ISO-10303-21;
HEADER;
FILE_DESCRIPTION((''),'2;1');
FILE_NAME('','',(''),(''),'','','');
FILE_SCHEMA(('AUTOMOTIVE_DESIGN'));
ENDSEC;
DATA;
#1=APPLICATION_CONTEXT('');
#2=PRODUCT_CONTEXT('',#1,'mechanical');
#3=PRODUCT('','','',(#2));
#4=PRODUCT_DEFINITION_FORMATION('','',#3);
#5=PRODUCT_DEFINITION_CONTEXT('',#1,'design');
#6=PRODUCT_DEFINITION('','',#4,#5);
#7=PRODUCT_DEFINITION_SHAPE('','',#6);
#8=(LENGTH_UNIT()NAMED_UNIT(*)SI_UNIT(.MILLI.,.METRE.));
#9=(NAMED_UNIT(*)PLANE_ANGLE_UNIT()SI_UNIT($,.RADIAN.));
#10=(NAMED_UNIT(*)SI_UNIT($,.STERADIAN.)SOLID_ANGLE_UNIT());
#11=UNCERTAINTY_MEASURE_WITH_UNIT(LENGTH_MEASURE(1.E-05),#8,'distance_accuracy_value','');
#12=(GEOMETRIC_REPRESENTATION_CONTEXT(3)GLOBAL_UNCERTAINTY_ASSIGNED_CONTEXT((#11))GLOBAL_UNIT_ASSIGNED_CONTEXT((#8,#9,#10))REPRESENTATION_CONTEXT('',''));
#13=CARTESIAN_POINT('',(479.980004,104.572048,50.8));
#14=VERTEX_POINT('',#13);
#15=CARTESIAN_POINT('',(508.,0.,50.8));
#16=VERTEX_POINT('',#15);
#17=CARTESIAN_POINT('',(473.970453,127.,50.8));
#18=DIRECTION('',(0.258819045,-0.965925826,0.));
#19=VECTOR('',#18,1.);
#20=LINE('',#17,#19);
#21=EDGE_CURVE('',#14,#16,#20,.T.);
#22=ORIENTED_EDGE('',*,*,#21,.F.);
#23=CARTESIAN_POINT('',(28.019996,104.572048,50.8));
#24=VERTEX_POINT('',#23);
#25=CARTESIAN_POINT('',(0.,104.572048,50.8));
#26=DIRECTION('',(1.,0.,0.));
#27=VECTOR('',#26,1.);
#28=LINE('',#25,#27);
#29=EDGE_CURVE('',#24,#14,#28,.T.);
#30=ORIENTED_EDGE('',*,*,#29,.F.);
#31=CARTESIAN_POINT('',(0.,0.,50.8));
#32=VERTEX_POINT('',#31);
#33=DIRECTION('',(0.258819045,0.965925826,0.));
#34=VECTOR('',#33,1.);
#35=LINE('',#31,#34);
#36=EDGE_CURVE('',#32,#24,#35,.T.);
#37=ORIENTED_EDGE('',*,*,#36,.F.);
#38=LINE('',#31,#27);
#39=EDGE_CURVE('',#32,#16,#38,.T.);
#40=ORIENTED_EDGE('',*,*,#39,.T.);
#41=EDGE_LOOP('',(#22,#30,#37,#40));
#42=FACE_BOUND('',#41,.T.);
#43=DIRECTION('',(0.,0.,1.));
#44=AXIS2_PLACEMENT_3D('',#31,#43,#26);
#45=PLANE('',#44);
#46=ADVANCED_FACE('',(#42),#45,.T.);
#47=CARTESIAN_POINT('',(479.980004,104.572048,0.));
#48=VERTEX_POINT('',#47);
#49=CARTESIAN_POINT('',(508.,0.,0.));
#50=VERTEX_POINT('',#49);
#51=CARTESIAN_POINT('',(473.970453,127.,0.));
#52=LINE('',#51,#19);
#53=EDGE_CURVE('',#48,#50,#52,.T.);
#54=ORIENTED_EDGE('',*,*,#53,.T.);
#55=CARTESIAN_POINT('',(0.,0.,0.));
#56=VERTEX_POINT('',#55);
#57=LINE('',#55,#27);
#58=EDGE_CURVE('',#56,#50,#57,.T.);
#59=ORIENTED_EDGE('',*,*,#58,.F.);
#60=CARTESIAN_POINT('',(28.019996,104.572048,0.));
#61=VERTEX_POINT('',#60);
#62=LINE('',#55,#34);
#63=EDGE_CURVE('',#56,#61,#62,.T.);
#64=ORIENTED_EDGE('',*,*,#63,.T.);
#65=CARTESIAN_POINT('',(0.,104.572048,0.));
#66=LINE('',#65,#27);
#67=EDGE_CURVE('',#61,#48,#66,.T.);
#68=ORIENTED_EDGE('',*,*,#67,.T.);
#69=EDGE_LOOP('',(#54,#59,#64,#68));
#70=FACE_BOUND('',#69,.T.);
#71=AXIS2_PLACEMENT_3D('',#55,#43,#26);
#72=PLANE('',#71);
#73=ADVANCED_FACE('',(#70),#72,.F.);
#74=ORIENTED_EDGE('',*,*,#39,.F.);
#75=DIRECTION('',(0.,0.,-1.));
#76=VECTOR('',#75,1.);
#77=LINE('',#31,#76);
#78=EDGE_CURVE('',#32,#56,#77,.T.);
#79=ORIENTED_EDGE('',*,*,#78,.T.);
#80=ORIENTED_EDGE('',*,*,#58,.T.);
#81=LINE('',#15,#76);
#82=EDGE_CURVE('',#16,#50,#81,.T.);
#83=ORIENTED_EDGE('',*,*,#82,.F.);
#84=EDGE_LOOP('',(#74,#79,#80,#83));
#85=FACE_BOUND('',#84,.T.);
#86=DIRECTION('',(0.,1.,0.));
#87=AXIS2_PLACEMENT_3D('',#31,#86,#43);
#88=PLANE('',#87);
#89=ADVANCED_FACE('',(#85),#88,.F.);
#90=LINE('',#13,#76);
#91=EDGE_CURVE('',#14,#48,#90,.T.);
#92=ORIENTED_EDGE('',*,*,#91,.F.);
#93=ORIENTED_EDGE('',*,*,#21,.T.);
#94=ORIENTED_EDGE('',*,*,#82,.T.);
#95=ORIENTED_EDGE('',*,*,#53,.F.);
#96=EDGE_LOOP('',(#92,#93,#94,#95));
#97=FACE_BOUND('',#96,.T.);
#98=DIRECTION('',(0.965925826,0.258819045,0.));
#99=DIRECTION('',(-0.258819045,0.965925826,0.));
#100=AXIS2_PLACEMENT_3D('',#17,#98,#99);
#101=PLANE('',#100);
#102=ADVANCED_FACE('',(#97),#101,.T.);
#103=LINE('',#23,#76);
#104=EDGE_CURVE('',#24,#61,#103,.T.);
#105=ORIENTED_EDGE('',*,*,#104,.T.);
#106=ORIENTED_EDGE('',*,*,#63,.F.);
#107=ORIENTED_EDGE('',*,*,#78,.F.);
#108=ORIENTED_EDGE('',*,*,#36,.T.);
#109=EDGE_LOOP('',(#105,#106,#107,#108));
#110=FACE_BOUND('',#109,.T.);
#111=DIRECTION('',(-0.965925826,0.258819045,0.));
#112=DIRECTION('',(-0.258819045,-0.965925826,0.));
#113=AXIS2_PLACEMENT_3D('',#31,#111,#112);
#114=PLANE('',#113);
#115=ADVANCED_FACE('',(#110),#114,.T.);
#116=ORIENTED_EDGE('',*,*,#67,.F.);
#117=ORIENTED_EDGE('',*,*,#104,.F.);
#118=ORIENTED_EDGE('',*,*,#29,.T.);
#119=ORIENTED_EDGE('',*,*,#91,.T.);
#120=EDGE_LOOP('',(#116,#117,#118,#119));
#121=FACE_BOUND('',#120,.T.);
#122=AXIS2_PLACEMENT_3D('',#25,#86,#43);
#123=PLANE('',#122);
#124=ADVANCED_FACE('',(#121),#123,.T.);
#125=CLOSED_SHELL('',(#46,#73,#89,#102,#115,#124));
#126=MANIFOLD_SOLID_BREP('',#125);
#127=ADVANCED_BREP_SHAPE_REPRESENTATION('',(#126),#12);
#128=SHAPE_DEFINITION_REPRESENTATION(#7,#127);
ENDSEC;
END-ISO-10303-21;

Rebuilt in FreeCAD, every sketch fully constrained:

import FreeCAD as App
import Part
import Sketcher
from FreeCAD import Vector
Q = App.Units.Quantity


def add_polygon(sketch, points):
    """Adds a closed chain of lines whose ends are joined by coincident constraints."""
    first, n = sketch.GeometryCount, len(points)
    for a, b in zip(points, points[1:] + points[:1]):
        sketch.addGeometry(Part.LineSegment(App.Vector(*a, 0), App.Vector(*b, 0)), False)
    for i in range(n):
        sketch.addConstraint(Sketcher.Constraint("Coincident", first + i, 2, first + (i + 1) % n, 1))

doc = App.newDocument("Part")
params = doc.addObject("Spreadsheet::Sheet", "Params")
for row, (alias, value) in enumerate([
    ("sketch1_width", "20 in"),
    ("pad1_length", "2 in"),
], start=1):
    params.set(f"A{row}", alias)
    params.set(f"B{row}", "=" + value)
    params.setAlias(f"B{row}", alias)

body = doc.addObject("PartDesign::Body", "Body")

# Sketch on XY plane
sketch1 = doc.addObject("Sketcher::SketchObject", "Sketch")
body.addObject(sketch1)
sketch1.AttachmentSupport = (doc.XY_Plane, [""])
sketch1.MapMode = "FlatFace"
add_polygon(sketch1, [(28.019996, 104.572048), (0, 0), (508, 0), (479.980004, 104.572048)])  # lines 0-3
sketch1.addConstraint(Sketcher.Constraint("Horizontal", 1))
sketch1.addConstraint(Sketcher.Constraint("Horizontal", 3))
sketch1.addConstraint(Sketcher.Constraint("Coincident", 0, 2, -1, 1))
sketch1.addConstraint(Sketcher.Constraint("Equal", 0, 2))
sketch1.addConstraint(Sketcher.Constraint("DistanceX", 1, 1, 1, 2, Q("20 in")))
sketch1.addConstraint(Sketcher.Constraint("Angle", 0, Q("-105 deg")))
sketch1.addConstraint(Sketcher.Constraint("DistanceX", 3, 2, 3, 1, Q("451.960009 mm")))
sketch1.setExpression("Constraints[8]", "Params.sketch1_width")
pad1 = doc.addObject("PartDesign::Pad", "Pad")
body.addObject(pad1)
pad1.Profile = sketch1
pad1.setExpression("Length", "Params.pad1_length")

doc.recompute()
